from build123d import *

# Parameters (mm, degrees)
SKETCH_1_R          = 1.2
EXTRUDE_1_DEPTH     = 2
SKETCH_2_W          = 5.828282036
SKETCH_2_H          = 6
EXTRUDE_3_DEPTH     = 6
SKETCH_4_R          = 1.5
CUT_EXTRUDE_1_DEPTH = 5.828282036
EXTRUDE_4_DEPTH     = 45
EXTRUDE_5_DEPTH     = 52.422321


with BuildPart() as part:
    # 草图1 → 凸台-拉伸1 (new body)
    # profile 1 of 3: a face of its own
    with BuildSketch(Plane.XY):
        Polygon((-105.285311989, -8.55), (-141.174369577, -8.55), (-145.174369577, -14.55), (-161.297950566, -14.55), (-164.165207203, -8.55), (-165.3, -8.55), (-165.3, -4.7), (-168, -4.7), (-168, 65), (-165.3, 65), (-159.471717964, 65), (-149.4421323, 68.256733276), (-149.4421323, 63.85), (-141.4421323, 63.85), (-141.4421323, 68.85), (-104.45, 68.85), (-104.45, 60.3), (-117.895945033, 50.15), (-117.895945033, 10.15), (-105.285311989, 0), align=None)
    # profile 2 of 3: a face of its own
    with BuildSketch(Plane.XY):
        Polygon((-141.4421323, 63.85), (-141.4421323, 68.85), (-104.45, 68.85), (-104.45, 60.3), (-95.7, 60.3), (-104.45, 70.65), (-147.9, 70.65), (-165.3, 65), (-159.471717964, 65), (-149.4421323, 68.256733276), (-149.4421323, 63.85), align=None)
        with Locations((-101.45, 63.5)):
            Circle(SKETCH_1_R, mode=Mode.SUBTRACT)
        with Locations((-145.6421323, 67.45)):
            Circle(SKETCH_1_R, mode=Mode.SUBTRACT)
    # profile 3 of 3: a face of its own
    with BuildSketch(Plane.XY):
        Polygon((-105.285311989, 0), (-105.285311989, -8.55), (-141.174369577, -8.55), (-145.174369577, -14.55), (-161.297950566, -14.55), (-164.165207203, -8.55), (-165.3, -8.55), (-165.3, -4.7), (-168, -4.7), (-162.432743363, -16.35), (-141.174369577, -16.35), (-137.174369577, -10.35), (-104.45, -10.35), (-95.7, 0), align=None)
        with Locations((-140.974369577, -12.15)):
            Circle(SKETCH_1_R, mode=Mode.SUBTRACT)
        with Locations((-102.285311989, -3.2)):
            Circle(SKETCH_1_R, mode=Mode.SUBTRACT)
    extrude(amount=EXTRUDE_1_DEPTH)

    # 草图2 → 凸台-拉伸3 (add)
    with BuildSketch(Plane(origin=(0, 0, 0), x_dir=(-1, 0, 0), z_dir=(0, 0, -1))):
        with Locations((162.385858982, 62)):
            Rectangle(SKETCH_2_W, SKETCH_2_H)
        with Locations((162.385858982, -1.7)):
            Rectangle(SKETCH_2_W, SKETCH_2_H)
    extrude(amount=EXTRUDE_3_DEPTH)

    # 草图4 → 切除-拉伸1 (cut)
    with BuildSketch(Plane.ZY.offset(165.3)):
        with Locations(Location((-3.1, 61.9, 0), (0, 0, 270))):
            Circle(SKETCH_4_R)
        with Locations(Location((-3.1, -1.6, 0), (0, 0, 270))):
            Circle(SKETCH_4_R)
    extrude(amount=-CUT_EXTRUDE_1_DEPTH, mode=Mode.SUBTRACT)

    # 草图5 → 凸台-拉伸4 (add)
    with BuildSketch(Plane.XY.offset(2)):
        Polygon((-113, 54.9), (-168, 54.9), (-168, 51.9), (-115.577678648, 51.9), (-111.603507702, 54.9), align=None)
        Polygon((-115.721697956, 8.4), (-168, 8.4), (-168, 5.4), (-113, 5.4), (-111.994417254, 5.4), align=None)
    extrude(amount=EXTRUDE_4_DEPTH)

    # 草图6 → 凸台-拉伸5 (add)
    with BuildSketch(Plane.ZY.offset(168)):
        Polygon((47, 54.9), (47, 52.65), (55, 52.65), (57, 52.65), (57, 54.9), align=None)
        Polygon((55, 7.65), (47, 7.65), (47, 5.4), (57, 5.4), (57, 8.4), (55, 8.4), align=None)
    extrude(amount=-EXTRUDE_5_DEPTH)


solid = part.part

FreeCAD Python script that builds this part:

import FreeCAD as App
import Part
import Sketcher
from FreeCAD import Vector

doc = App.newDocument("Part")
body = doc.addObject("PartDesign::Body", "Body")

sketch1 = doc.addObject("Sketcher::SketchObject", "Sketch")
body.addObject(sketch1)
sketch1.AttachmentSupport = (doc.XY_Plane, [""])
sketch1.MapMode = "FlatFace"
sketch1.addGeometry(Part.LineSegment(Vector(-168, 65, 0), Vector(-168, -4.7, 0)), False)
sketch1.addGeometry(Part.LineSegment(Vector(-168, -4.7, 0), Vector(-162.4, -16.4, 0)), False)
sketch1.addGeometry(Part.LineSegment(Vector(-162.4, -16.4, 0), Vector(-141.2, -16.4, 0)), False)
sketch1.addGeometry(Part.LineSegment(Vector(-141.2, -16.4, 0), Vector(-137.2, -10.3, 0)), False)
sketch1.addGeometry(Part.LineSegment(Vector(-137.2, -10.3, 0), Vector(-104.5, -10.3, 0)), False)
sketch1.addGeometry(Part.LineSegment(Vector(-104.5, -10.3, 0), Vector(-95.7, 0, 0)), False)
sketch1.addGeometry(Part.LineSegment(Vector(-95.7, 0, 0), Vector(-105.3, 0, 0)), False)
sketch1.addGeometry(Part.LineSegment(Vector(-105.3, 0, 0), Vector(-117.9, 10.2, 0)), False)
sketch1.addGeometry(Part.LineSegment(Vector(-117.9, 10.2, 0), Vector(-117.9, 50.1, 0)), False)
sketch1.addGeometry(Part.LineSegment(Vector(-117.9, 50.1, 0), Vector(-104.5, 60.3, 0)), False)
sketch1.addGeometry(Part.LineSegment(Vector(-104.5, 60.3, 0), Vector(-95.7, 60.3, 0)), False)
sketch1.addGeometry(Part.LineSegment(Vector(-95.7, 60.3, 0), Vector(-104.5, 70.7, 0)), False)
sketch1.addGeometry(Part.LineSegment(Vector(-104.5, 70.7, 0), Vector(-147.9, 70.7, 0)), False)
sketch1.addGeometry(Part.LineSegment(Vector(-147.9, 70.7, 0), Vector(-165.3, 65, 0)), False)
sketch1.addGeometry(Part.LineSegment(Vector(-165.3, 65, 0), Vector(-168, 65, 0)), False)
sketch1.addGeometry(Part.Circle(Vector(-102.3, -3.2, 0), Vector(0, 0, 1), 1.2), False)
sketch1.addGeometry(Part.Circle(Vector(-141, -12.2, 0), Vector(0, 0, 1), 1.2), False)
sketch1.addGeometry(Part.Circle(Vector(-145.6, 67.5, 0), Vector(0, 0, 1), 1.2), False)
sketch1.addGeometry(Part.Circle(Vector(-101.5, 63.5, 0), Vector(0, 0, 1), 1.2), False)
sketch1.addConstraint(Sketcher.Constraint("Coincident", 0, 2, 1, 1))
sketch1.addConstraint(Sketcher.Constraint("Coincident", 1, 2, 2, 1))
sketch1.addConstraint(Sketcher.Constraint("Coincident", 2, 2, 3, 1))
sketch1.addConstraint(Sketcher.Constraint("Coincident", 3, 2, 4, 1))
sketch1.addConstraint(Sketcher.Constraint("Coincident", 4, 2, 5, 1))
sketch1.addConstraint(Sketcher.Constraint("Coincident", 5, 2, 6, 1))
sketch1.addConstraint(Sketcher.Constraint("Coincident", 6, 2, 7, 1))
sketch1.addConstraint(Sketcher.Constraint("Coincident", 7, 2, 8, 1))
sketch1.addConstraint(Sketcher.Constraint("Coincident", 8, 2, 9, 1))
sketch1.addConstraint(Sketcher.Constraint("Coincident", 9, 2, 10, 1))
sketch1.addConstraint(Sketcher.Constraint("Coincident", 10, 2, 11, 1))
sketch1.addConstraint(Sketcher.Constraint("Coincident", 11, 2, 12, 1))
sketch1.addConstraint(Sketcher.Constraint("Coincident", 12, 2, 13, 1))
sketch1.addConstraint(Sketcher.Constraint("Coincident", 13, 2, 14, 1))
sketch1.addConstraint(Sketcher.Constraint("Coincident", 14, 2, 0, 1))
sketch1.addConstraint(Sketcher.Constraint("Vertical", 0))
sketch1.addConstraint(Sketcher.Constraint("Horizontal", 2))
sketch1.addConstraint(Sketcher.Constraint("Horizontal", 4))
sketch1.addConstraint(Sketcher.Constraint("Horizontal", 6))
sketch1.addConstraint(Sketcher.Constraint("Vertical", 8))
sketch1.addConstraint(Sketcher.Constraint("Horizontal", 10))
sketch1.addConstraint(Sketcher.Constraint("Horizontal", 12))
sketch1.addConstraint(Sketcher.Constraint("Horizontal", 14))
sketch1.addConstraint(Sketcher.Constraint("Equal", 15, 16))
sketch1.addConstraint(Sketcher.Constraint("Equal", 16, 17))
sketch1.addConstraint(Sketcher.Constraint("Equal", 17, 18))
sketch1.addConstraint(Sketcher.Constraint("PointOnObject", 5, 2, -1))
sketch1.addConstraint(Sketcher.Constraint("Vertical", 4, 2, 9, 2))
sketch1.addConstraint(Sketcher.Constraint("Vertical", 5, 2, 10, 2))
sketch1.addConstraint(Sketcher.Constraint("Vertical", 9, 2, 11, 2))
sketch1.addConstraint(Sketcher.Constraint("Equal", 5, 11))
sketch1.addConstraint(Sketcher.Constraint("Diameter", 15, 2.4))
sketch1.addConstraint(Sketcher.Constraint("DistanceY", 8, 1, 8, 2, 40.0))
sketch1.addConstraint(Sketcher.Constraint("DistanceX", 14, 2, 14, 1, 2.7))
sketch1.addConstraint(Sketcher.Constraint("DistanceY", 0, 2, 0, 1, 69.7))
sketch1.addConstraint(Sketcher.Constraint("DistanceX", 0, 2, -1, 1, 168.0))
sketch1.addConstraint(Sketcher.Constraint("DistanceY", -1, 1, 13, 2, 65.0))
sketch1.addConstraint(Sketcher.Constraint("DistanceX", 2, 2, 3, 2, 4.0))
sketch1.addConstraint(Sketcher.Constraint("DistanceY", 2, 2, 3, 2, 6.0))
sketch1.addConstraint(Sketcher.Constraint("DistanceX", 6, 2, 15, 3, 3.0))
sketch1.addConstraint(Sketcher.Constraint("DistanceX", 9, 2, 18, 3, 3.0))
sketch1.addConstraint(Sketcher.Constraint("DistanceX", 10, 1, 10, 2, 8.75))
sketch1.addConstraint(Sketcher.Constraint("DistanceX", 12, 2, 12, 1, 43.45))
sketch1.addConstraint(Sketcher.Constraint("DistanceY", 15, 3, -1, 1, 3.2))
sketch1.addConstraint(Sketcher.Constraint("DistanceY", -1, 1, 18, 3, 63.5))
sketch1.addConstraint(Sketcher.Constraint("DistanceX", 5, 2, -1, 1, 95.7))
sketch1.addConstraint(Sketcher.Constraint("DistanceY", -1, 1, 9, 2, 60.3))
sketch1.addConstraint(Sketcher.Constraint("DistanceY", 16, 3, 17, 3, 79.6))
sketch1.addConstraint(Sketcher.Constraint("DistanceY", 1, 2, 16, 3, 4.2))
sketch1.addConstraint(Sketcher.Constraint("DistanceX", 2, 2, 16, 3, 0.2))
sketch1.addConstraint(Sketcher.Constraint("DistanceY", 4, 2, 7, 2, 20.5))
sketch1.addConstraint(Sketcher.Constraint("DistanceY", 8, 2, 11, 2, 20.5))
sketch1.addConstraint(Sketcher.Constraint("DistanceX", 4, 1, 4, 2, 32.72437))
sketch1.addConstraint(Sketcher.Constraint("DistanceX", 6, 2, 6, 1, 9.585312))
sketch1.addConstraint(Sketcher.Constraint("DistanceX", 2, 1, 2, 2, 21.258374))
sketch1.addConstraint(Sketcher.Constraint("DistanceX", 17, 3, 15, 3, 43.35682))
sketch1.addConstraint(Sketcher.Constraint("Distance", 7, 16.187976))
pad1 = doc.addObject("PartDesign::Pad", "Pad")
body.addObject(pad1)
pad1.Profile = sketch1
pad1.Length = 2

sketch2 = doc.addObject("Sketcher::SketchObject", "Sketch001")
body.addObject(sketch2)
sketch2.AttachmentSupport = (doc.XY_Plane, [""])
sketch2.MapMode = "FlatFace"
sketch2.addGeometry(Part.LineSegment(Vector(-159, 65, 0), Vector(-159, 59, 0)), False)
sketch2.addGeometry(Part.LineSegment(Vector(-159, 59, 0), Vector(-165, 59, 0)), False)
sketch2.addGeometry(Part.LineSegment(Vector(-165, 59, 0), Vector(-165, 65, 0)), False)
sketch2.addGeometry(Part.LineSegment(Vector(-165, 65, 0), Vector(-159, 65, 0)), False)
sketch2.addGeometry(Part.LineSegment(Vector(-159, 1, 0), Vector(-159, -5, 0)), False)
sketch2.addGeometry(Part.LineSegment(Vector(-159, -5, 0), Vector(-165, -5, 0)), False)
sketch2.addGeometry(Part.LineSegment(Vector(-165, -5, 0), Vector(-165, 1, 0)), False)
sketch2.addGeometry(Part.LineSegment(Vector(-165, 1, 0), Vector(-159, 1, 0)), False)
sketch2.addConstraint(Sketcher.Constraint("Coincident", 0, 2, 1, 1))
sketch2.addConstraint(Sketcher.Constraint("Coincident", 1, 2, 2, 1))
sketch2.addConstraint(Sketcher.Constraint("Coincident", 2, 2, 3, 1))
sketch2.addConstraint(Sketcher.Constraint("Coincident", 3, 2, 0, 1))
sketch2.addConstraint(Sketcher.Constraint("Coincident", 4, 2, 5, 1))
sketch2.addConstraint(Sketcher.Constraint("Coincident", 5, 2, 6, 1))
sketch2.addConstraint(Sketcher.Constraint("Coincident", 6, 2, 7, 1))
sketch2.addConstraint(Sketcher.Constraint("Coincident", 7, 2, 4, 1))
sketch2.addConstraint(Sketcher.Constraint("Vertical", 0))
sketch2.addConstraint(Sketcher.Constraint("Horizontal", 1))
sketch2.addConstraint(Sketcher.Constraint("Vertical", 2))
sketch2.addConstraint(Sketcher.Constraint("Horizontal", 3))
sketch2.addConstraint(Sketcher.Constraint("Vertical", 4))
sketch2.addConstraint(Sketcher.Constraint("Horizontal", 5))
sketch2.addConstraint(Sketcher.Constraint("Vertical", 6))
sketch2.addConstraint(Sketcher.Constraint("Horizontal", 7))
sketch2.addConstraint(Sketcher.Constraint("Vertical", 3, 2, 4, 2))
sketch2.addConstraint(Sketcher.Constraint("Vertical", 2, 2, 5, 2))
sketch2.addConstraint(Sketcher.Constraint("Equal", 2, 4))
sketch2.addConstraint(Sketcher.Constraint("DistanceY", 0, 2, 0, 1, 6.0))
sketch2.addConstraint(Sketcher.Constraint("DistanceY", -1, 1, 0, 2, 59.0))
sketch2.addConstraint(Sketcher.Constraint("DistanceX", 1, 2, -1, 1, 165.3))
sketch2.addConstraint(Sketcher.Constraint("DistanceY", 4, 2, -1, 1, 4.7))
sketch2.addConstraint(Sketcher.Constraint("DistanceX", 1, 2, 1, 1, 5.828282))
pad2 = doc.addObject("PartDesign::Pad", "Pad001")
body.addObject(pad2)
pad2.Profile = sketch2
pad2.Length = 6
pad2.Reversed = True

sketch3 = doc.addObject("Sketcher::SketchObject", "Sketch002")
body.addObject(sketch3)
sketch3.AttachmentSupport = (doc.YZ_Plane, [""])
sketch3.MapMode = "FlatFace"
sketch3.AttachmentOffset = App.Placement(Vector(0, 0, -165.3), App.Rotation())
sketch3.addGeometry(Part.Circle(Vector(61.9, -3.1, 0), Vector(0, 0, 1), 1.5), False)
sketch3.addGeometry(Part.Circle(Vector(-1.6, -3.1, 0), Vector(0, 0, 1), 1.5), False)
sketch3.addConstraint(Sketcher.Constraint("Equal", 0, 1))
sketch3.addConstraint(Sketcher.Constraint("Horizontal", 0, 3, 1, 3))
sketch3.addConstraint(Sketcher.Constraint("Diameter", 0, 3.0))
sketch3.addConstraint(Sketcher.Constraint("DistanceX", -1, 1, 0, 3, 61.9))
sketch3.addConstraint(Sketcher.Constraint("DistanceY", 0, 3, -1, 1, 3.1))
sketch3.addConstraint(Sketcher.Constraint("DistanceX", 1, 3, -1, 1, 1.6))
pocket1 = doc.addObject("PartDesign::Pocket", "Pocket")
body.addObject(pocket1)
pocket1.Profile = sketch3
pocket1.Length = 5.828282
pocket1.Reversed = True

sketch4 = doc.addObject("Sketcher::SketchObject", "Sketch003")
body.addObject(sketch4)
sketch4.AttachmentSupport = (doc.XY_Plane, [""])
sketch4.MapMode = "FlatFace"
sketch4.AttachmentOffset = App.Placement(Vector(0, 0, 2), App.Rotation())
sketch4.addGeometry(Part.LineSegment(Vector(-168, 54.9, 0), Vector(-168, 51.9, 0)), False)
sketch4.addGeometry(Part.LineSegment(Vector(-168, 51.9, 0), Vector(-115.6, 51.9, 0)), False)
sketch4.addGeometry(Part.LineSegment(Vector(-115.6, 51.9, 0), Vector(-111.6, 54.9, 0)), False)
sketch4.addGeometry(Part.LineSegment(Vector(-111.6, 54.9, 0), Vector(-168, 54.9, 0)), False)
sketch4.addGeometry(Part.LineSegment(Vector(-115.7, 8.4, 0), Vector(-168, 8.4, 0)), False)
sketch4.addGeometry(Part.LineSegment(Vector(-168, 8.4, 0), Vector(-168, 5.4, 0)), False)
sketch4.addGeometry(Part.LineSegment(Vector(-168, 5.4, 0), Vector(-112, 5.4, 0)), False)
sketch4.addGeometry(Part.LineSegment(Vector(-112, 5.4, 0), Vector(-115.7, 8.4, 0)), False)
sketch4.addConstraint(Sketcher.Constraint("Coincident", 0, 2, 1, 1))
sketch4.addConstraint(Sketcher.Constraint("Coincident", 1, 2, 2, 1))
sketch4.addConstraint(Sketcher.Constraint("Coincident", 2, 2, 3, 1))
sketch4.addConstraint(Sketcher.Constraint("Coincident", 3, 2, 0, 1))
sketch4.addConstraint(Sketcher.Constraint("Coincident", 4, 2, 5, 1))
sketch4.addConstraint(Sketcher.Constraint("Coincident", 5, 2, 6, 1))
sketch4.addConstraint(Sketcher.Constraint("Coincident", 6, 2, 7, 1))
sketch4.addConstraint(Sketcher.Constraint("Coincident", 7, 2, 4, 1))
sketch4.addConstraint(Sketcher.Constraint("Vertical", 0))
sketch4.addConstraint(Sketcher.Constraint("Horizontal", 1))
sketch4.addConstraint(Sketcher.Constraint("Horizontal", 3))
sketch4.addConstraint(Sketcher.Constraint("Horizontal", 4))
sketch4.addConstraint(Sketcher.Constraint("Vertical", 5))
sketch4.addConstraint(Sketcher.Constraint("Horizontal", 6))
sketch4.addConstraint(Sketcher.Constraint("Vertical", 3, 2, 4, 2))
sketch4.addConstraint(Sketcher.Constraint("Equal", 0, 5))
sketch4.addConstraint(Sketcher.Constraint("DistanceY", 0, 2, 0, 1, 3.0))
sketch4.addConstraint(Sketcher.Constraint("DistanceX", 0, 2, -1, 1, 168.0))
sketch4.addConstraint(Sketcher.Constraint("DistanceY", -1, 1, 0, 2, 51.9))
sketch4.addConstraint(Sketcher.Constraint("DistanceY", -1, 1, 4, 2, 8.4))
sketch4.addConstraint(Sketcher.Constraint("DistanceX", 1, 1, 1, 2, 52.422321))
sketch4.addConstraint(Sketcher.Constraint("Distance", 2, 4.979361))
sketch4.addConstraint(Sketcher.Constraint("DistanceX", 4, 2, 4, 1, 52.278302))
sketch4.addConstraint(Sketcher.Constraint("DistanceX", 6, 1, 6, 2, 56.005583))
pad3 = doc.addObject("PartDesign::Pad", "Pad002")
body.addObject(pad3)
pad3.Profile = sketch4
pad3.Length = 45

sketch5 = doc.addObject("Sketcher::SketchObject", "Sketch004")
body.addObject(sketch5)
sketch5.AttachmentSupport = (doc.YZ_Plane, [""])
sketch5.MapMode = "FlatFace"
sketch5.AttachmentOffset = App.Placement(Vector(0, 0, -168), App.Rotation())
sketch5.addGeometry(Part.LineSegment(Vector(54.9, 47, 0), Vector(52.6, 47, 0)), False)
sketch5.addGeometry(Part.LineSegment(Vector(52.6, 47, 0), Vector(52.6, 57, 0)), False)
sketch5.addGeometry(Part.LineSegment(Vector(52.6, 57, 0), Vector(54.9, 57, 0)), False)
sketch5.addGeometry(Part.LineSegment(Vector(54.9, 57, 0), Vector(54.9, 47, 0)), False)
sketch5.addGeometry(Part.LineSegment(Vector(7.7, 55, 0), Vector(7.7, 47, 0)), False)
sketch5.addGeometry(Part.LineSegment(Vector(7.7, 47, 0), Vector(5.4, 47, 0)), False)
sketch5.addGeometry(Part.LineSegment(Vector(5.4, 47, 0), Vector(5.4, 57, 0)), False)
sketch5.addGeometry(Part.LineSegment(Vector(5.4, 57, 0), Vector(8.4, 57, 0)), False)
sketch5.addGeometry(Part.LineSegment(Vector(8.4, 57, 0), Vector(8.4, 55, 0)), False)
sketch5.addGeometry(Part.LineSegment(Vector(8.4, 55, 0), Vector(7.7, 55, 0)), False)
sketch5.addConstraint(Sketcher.Constraint("Coincident", 0, 2, 1, 1))
sketch5.addConstraint(Sketcher.Constraint("Coincident", 1, 2, 2, 1))
sketch5.addConstraint(Sketcher.Constraint("Coincident", 2, 2, 3, 1))
sketch5.addConstraint(Sketcher.Constraint("Coincident", 3, 2, 0, 1))
sketch5.addConstraint(Sketcher.Constraint("Coincident", 4, 2, 5, 1))
sketch5.addConstraint(Sketcher.Constraint("Coincident", 5, 2, 6, 1))
sketch5.addConstraint(Sketcher.Constraint("Coincident", 6, 2, 7, 1))
sketch5.addConstraint(Sketcher.Constraint("Coincident", 7, 2, 8, 1))
sketch5.addConstraint(Sketcher.Constraint("Coincident", 8, 2, 9, 1))
sketch5.addConstraint(Sketcher.Constraint("Coincident", 9, 2, 4, 1))
sketch5.addConstraint(Sketcher.Constraint("Horizontal", 0))
sketch5.addConstraint(Sketcher.Constraint("Vertical", 1))
sketch5.addConstraint(Sketcher.Constraint("Horizontal", 2))
sketch5.addConstraint(Sketcher.Constraint("Vertical", 3))
sketch5.addConstraint(Sketcher.Constraint("Vertical", 4))
sketch5.addConstraint(Sketcher.Constraint("Horizontal", 5))
sketch5.addConstraint(Sketcher.Constraint("Vertical", 6))
sketch5.addConstraint(Sketcher.Constraint("Horizontal", 7))
sketch5.addConstraint(Sketcher.Constraint("Vertical", 8))
sketch5.addConstraint(Sketcher.Constraint("Horizontal", 9))
sketch5.addConstraint(Sketcher.Constraint("Horizontal", 3, 2, 4, 2))
sketch5.addConstraint(Sketcher.Constraint("Horizontal", 2, 2, 6, 2))
sketch5.addConstraint(Sketcher.Constraint("Equal", 2, 5))
sketch5.addConstraint(Sketcher.Constraint("DistanceX", 7, 1, 7, 2, 3.0))
sketch5.addConstraint(Sketcher.Constraint("DistanceY", 1, 1, 1, 2, 10.0))
sketch5.addConstraint(Sketcher.Constraint("DistanceY", 4, 2, 4, 1, 8.0))
sketch5.addConstraint(Sketcher.Constraint("DistanceY", -1, 1, 0, 2, 47.0))
sketch5.addConstraint(Sketcher.Constraint("DistanceX", 4, 2, 0, 2, 45.0))
sketch5.addConstraint(Sketcher.Constraint("DistanceX", 0, 2, 0, 1, 2.25))
sketch5.addConstraint(Sketcher.Constraint("DistanceX", -1, 1, 2, 2, 54.9))
pad4 = doc.addObject("PartDesign::Pad", "Pad003")
body.addObject(pad4)
pad4.Profile = sketch5
pad4.Length = 52.422321

doc.recompute()
